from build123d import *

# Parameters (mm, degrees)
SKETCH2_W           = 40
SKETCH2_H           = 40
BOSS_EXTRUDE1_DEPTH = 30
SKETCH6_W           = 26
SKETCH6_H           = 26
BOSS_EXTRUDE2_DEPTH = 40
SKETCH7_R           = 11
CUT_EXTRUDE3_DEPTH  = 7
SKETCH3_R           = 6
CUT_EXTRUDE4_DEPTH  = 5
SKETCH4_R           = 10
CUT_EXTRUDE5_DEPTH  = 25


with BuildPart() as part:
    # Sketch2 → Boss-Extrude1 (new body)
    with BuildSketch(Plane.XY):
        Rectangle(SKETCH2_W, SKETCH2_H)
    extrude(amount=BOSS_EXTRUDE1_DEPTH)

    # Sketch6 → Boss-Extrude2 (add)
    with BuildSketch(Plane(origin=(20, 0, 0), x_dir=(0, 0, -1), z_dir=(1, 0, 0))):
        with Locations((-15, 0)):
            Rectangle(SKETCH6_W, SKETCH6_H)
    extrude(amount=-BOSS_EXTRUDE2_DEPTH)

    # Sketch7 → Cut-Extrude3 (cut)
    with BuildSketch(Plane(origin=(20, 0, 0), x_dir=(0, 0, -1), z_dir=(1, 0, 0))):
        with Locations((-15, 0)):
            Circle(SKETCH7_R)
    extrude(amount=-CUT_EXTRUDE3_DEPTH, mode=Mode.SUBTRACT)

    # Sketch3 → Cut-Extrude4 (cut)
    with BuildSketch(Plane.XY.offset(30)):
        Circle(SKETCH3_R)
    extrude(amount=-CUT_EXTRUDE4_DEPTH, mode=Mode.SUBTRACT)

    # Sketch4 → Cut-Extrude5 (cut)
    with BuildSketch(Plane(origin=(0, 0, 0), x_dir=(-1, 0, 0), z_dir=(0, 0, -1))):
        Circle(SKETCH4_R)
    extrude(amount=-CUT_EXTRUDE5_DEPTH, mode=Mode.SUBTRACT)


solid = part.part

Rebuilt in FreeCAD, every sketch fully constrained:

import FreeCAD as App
import Part
import Sketcher
from FreeCAD import Vector
Q = App.Units.Quantity


def add_polygon(sketch, points):
    """Adds a closed chain of lines whose ends are joined by coincident constraints."""
    first, n = sketch.GeometryCount, len(points)
    for a, b in zip(points, points[1:] + points[:1]):
        sketch.addGeometry(Part.LineSegment(App.Vector(*a, 0), App.Vector(*b, 0)), False)
    for i in range(n):
        sketch.addConstraint(Sketcher.Constraint("Coincident", first + i, 2, first + (i + 1) % n, 1))

doc = App.newDocument("Part")
body = doc.addObject("PartDesign::Body", "Body")

# Sketch on XY plane
sketch1 = doc.addObject("Sketcher::SketchObject", "Sketch")
body.addObject(sketch1)
sketch1.AttachmentSupport = (doc.XY_Plane, [""])
sketch1.MapMode = "FlatFace"
add_polygon(sketch1, [(-20, 20), (-20, -20), (20, -20), (20, 20)])  # lines 0-3
sketch1.addConstraint([
    Sketcher.Constraint("Vertical", 0),
    Sketcher.Constraint("Horizontal", 1),
    Sketcher.Constraint("Vertical", 2),
    Sketcher.Constraint("Horizontal", 3),
    Sketcher.Constraint("Symmetric", 0, 2, 2, 2, -1, 1),
    Sketcher.Constraint("Equal", 3, 0),
    Sketcher.Constraint("DistanceX", 1, 1, 1, 2, Q("40 mm")),
])
pad1 = doc.addObject("PartDesign::Pad", "Pad")
body.addObject(pad1)
pad1.Profile = sketch1
pad1.Length = 30

# Sketch on YZ plane
sketch2 = doc.addObject("Sketcher::SketchObject", "Sketch001")
body.addObject(sketch2)
sketch2.AttachmentSupport = (doc.YZ_Plane, [""])
sketch2.MapMode = "FlatFace"
sketch2.AttachmentOffset = App.Placement(Vector(0, 0, 20), App.Rotation())
add_polygon(sketch2, [(13, 28), (-13, 28), (-13, 2), (13, 2)])  # lines 0-3
sketch2.addConstraint([
    Sketcher.Constraint("Horizontal", 0),
    Sketcher.Constraint("Vertical", 1),
    Sketcher.Constraint("Horizontal", 2),
    Sketcher.Constraint("Vertical", 3),
    Sketcher.Constraint("Equal", 2, 1),
    Sketcher.Constraint("DistanceX", 0, 2, 0, 1, Q("26 mm")),
    Sketcher.Constraint("DistanceX", 0, 2, -1, 1, Q("13 mm")),
    Sketcher.Constraint("DistanceY", -1, 1, 0, 2, Q("28 mm")),
])
pad2 = doc.addObject("PartDesign::Pad", "Pad001")
body.addObject(pad2)
pad2.Profile = sketch2
pad2.Length = 40
pad2.Reversed = True

# Sketch on YZ plane
sketch3 = doc.addObject("Sketcher::SketchObject", "Sketch002")
body.addObject(sketch3)
sketch3.AttachmentSupport = (doc.YZ_Plane, [""])
sketch3.MapMode = "FlatFace"
sketch3.AttachmentOffset = App.Placement(Vector(0, 0, 20), App.Rotation())
sketch3.addGeometry(Part.Circle(Vector(0, 15, 0), Vector(0, 0, 1), 11), False)
sketch3.addConstraint([
    Sketcher.Constraint("PointOnObject", 0, 3, -2),
    Sketcher.Constraint("Diameter", 0, Q("22 mm")),
    Sketcher.Constraint("DistanceY", -1, 1, 0, 3, Q("15 mm")),
])
pocket1 = doc.addObject("PartDesign::Pocket", "Pocket")
body.addObject(pocket1)
pocket1.Profile = sketch3
pocket1.Length = 7

# Sketch on XY plane
sketch4 = doc.addObject("Sketcher::SketchObject", "Sketch003")
body.addObject(sketch4)
sketch4.AttachmentSupport = (doc.XY_Plane, [""])
sketch4.MapMode = "FlatFace"
sketch4.AttachmentOffset = App.Placement(Vector(0, 0, 30), App.Rotation())
sketch4.addGeometry(Part.Circle(Vector(0, 0, 0), Vector(0, 0, 1), 6), False)
sketch4.addConstraint([
    Sketcher.Constraint("Coincident", 0, 3, -1, 1),
    Sketcher.Constraint("Diameter", 0, Q("12 mm")),
])
pocket2 = doc.addObject("PartDesign::Pocket", "Pocket001")
body.addObject(pocket2)
pocket2.Profile = sketch4
pocket2.Length = 5

# Sketch on XY plane
sketch5 = doc.addObject("Sketcher::SketchObject", "Sketch004")
body.addObject(sketch5)
sketch5.AttachmentSupport = (doc.XY_Plane, [""])
sketch5.MapMode = "FlatFace"
sketch5.addGeometry(Part.Circle(Vector(0, 0, 0), Vector(0, 0, 1), 10), False)
sketch5.addConstraint([
    Sketcher.Constraint("Coincident", 0, 3, -1, 1),
    Sketcher.Constraint("Diameter", 0, Q("20 mm")),
])
pocket3 = doc.addObject("PartDesign::Pocket", "Pocket002")
body.addObject(pocket3)
pocket3.Profile = sketch5
pocket3.Length = 25
pocket3.Reversed = True

doc.recompute()
